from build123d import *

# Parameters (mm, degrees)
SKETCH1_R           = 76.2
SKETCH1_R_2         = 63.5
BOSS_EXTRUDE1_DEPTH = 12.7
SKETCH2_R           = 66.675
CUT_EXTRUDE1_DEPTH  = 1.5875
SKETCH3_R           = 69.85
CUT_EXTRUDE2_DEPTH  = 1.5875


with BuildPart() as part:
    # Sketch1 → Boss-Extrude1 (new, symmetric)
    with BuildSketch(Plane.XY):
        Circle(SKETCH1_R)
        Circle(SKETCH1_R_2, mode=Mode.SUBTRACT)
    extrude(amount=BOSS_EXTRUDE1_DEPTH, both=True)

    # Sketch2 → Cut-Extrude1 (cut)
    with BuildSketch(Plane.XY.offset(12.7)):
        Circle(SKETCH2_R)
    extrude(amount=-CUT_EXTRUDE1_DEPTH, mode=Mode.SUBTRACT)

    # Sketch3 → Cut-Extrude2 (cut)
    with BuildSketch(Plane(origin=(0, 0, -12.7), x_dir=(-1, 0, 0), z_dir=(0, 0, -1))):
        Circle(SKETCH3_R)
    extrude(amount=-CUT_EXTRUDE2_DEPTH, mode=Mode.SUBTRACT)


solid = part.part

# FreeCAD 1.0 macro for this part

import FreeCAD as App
import Part
import Sketcher
Q = App.Units.Quantity

doc = App.newDocument("Part")
body = doc.addObject("PartDesign::Body", "Body")

# Sketch on XY plane
sketch1 = body.newObject("Sketcher::SketchObject", "Sketch")
sketch1.AttachmentSupport = (doc.getObject("XY_Plane"), [""])
sketch1.MapMode = "FlatFace"
sketch1.addGeometry(Part.Circle(App.Vector(0, 0, 0), App.Vector(0, 0, 1), 76), False)
sketch1.addGeometry(Part.Circle(App.Vector(0, 0, 0), App.Vector(0, 0, 1), 64), False)
sketch1.addConstraint(Sketcher.Constraint("Coincident", 0, 3, -1, 1))
sketch1.addConstraint(Sketcher.Constraint("Coincident", 1, 3, -1, 1))
sketch1.addConstraint(Sketcher.Constraint("Diameter", 0, Q("6 in")))
sketch1.addConstraint(Sketcher.Constraint("Diameter", 1, Q("5 in")))
pad1 = body.newObject("PartDesign::Pad", "Pad")
pad1.Profile = sketch1
pad1.Length = Q("1 in")
pad1.Midplane = True

# Sketch on XY plane
sketch2 = body.newObject("Sketcher::SketchObject", "Sketch001")
sketch2.AttachmentSupport = (doc.getObject("XY_Plane"), [""])
sketch2.MapMode = "FlatFace"
sketch2.AttachmentOffset = App.Placement(App.Vector(0, 0, 0.5 * 25.4), App.Rotation())
sketch2.addGeometry(Part.Circle(App.Vector(0, 0, 0), App.Vector(0, 0, 1), 67), False)
sketch2.addConstraint(Sketcher.Constraint("Coincident", 0, 3, -1, 1))
sketch2.addConstraint(Sketcher.Constraint("Diameter", 0, Q("5.25 in")))
pocket1 = body.newObject("PartDesign::Pocket", "Pocket")
pocket1.Profile = sketch2
pocket1.Length = Q("0.0625 in")

# Sketch on XY plane
sketch3 = body.newObject("Sketcher::SketchObject", "Sketch002")
sketch3.AttachmentSupport = (doc.getObject("XY_Plane"), [""])
sketch3.MapMode = "FlatFace"
sketch3.AttachmentOffset = App.Placement(App.Vector(0, 0, -0.5 * 25.4), App.Rotation())
sketch3.addGeometry(Part.Circle(App.Vector(0, 0, 0), App.Vector(0, 0, 1), 70), False)
sketch3.addConstraint(Sketcher.Constraint("Coincident", 0, 3, -1, 1))
sketch3.addConstraint(Sketcher.Constraint("Diameter", 0, Q("5.5 in")))
pocket2 = body.newObject("PartDesign::Pocket", "Pocket001")
pocket2.Profile = sketch3
pocket2.Length = Q("0.0625 in")
pocket2.Reversed = True

doc.recompute()
